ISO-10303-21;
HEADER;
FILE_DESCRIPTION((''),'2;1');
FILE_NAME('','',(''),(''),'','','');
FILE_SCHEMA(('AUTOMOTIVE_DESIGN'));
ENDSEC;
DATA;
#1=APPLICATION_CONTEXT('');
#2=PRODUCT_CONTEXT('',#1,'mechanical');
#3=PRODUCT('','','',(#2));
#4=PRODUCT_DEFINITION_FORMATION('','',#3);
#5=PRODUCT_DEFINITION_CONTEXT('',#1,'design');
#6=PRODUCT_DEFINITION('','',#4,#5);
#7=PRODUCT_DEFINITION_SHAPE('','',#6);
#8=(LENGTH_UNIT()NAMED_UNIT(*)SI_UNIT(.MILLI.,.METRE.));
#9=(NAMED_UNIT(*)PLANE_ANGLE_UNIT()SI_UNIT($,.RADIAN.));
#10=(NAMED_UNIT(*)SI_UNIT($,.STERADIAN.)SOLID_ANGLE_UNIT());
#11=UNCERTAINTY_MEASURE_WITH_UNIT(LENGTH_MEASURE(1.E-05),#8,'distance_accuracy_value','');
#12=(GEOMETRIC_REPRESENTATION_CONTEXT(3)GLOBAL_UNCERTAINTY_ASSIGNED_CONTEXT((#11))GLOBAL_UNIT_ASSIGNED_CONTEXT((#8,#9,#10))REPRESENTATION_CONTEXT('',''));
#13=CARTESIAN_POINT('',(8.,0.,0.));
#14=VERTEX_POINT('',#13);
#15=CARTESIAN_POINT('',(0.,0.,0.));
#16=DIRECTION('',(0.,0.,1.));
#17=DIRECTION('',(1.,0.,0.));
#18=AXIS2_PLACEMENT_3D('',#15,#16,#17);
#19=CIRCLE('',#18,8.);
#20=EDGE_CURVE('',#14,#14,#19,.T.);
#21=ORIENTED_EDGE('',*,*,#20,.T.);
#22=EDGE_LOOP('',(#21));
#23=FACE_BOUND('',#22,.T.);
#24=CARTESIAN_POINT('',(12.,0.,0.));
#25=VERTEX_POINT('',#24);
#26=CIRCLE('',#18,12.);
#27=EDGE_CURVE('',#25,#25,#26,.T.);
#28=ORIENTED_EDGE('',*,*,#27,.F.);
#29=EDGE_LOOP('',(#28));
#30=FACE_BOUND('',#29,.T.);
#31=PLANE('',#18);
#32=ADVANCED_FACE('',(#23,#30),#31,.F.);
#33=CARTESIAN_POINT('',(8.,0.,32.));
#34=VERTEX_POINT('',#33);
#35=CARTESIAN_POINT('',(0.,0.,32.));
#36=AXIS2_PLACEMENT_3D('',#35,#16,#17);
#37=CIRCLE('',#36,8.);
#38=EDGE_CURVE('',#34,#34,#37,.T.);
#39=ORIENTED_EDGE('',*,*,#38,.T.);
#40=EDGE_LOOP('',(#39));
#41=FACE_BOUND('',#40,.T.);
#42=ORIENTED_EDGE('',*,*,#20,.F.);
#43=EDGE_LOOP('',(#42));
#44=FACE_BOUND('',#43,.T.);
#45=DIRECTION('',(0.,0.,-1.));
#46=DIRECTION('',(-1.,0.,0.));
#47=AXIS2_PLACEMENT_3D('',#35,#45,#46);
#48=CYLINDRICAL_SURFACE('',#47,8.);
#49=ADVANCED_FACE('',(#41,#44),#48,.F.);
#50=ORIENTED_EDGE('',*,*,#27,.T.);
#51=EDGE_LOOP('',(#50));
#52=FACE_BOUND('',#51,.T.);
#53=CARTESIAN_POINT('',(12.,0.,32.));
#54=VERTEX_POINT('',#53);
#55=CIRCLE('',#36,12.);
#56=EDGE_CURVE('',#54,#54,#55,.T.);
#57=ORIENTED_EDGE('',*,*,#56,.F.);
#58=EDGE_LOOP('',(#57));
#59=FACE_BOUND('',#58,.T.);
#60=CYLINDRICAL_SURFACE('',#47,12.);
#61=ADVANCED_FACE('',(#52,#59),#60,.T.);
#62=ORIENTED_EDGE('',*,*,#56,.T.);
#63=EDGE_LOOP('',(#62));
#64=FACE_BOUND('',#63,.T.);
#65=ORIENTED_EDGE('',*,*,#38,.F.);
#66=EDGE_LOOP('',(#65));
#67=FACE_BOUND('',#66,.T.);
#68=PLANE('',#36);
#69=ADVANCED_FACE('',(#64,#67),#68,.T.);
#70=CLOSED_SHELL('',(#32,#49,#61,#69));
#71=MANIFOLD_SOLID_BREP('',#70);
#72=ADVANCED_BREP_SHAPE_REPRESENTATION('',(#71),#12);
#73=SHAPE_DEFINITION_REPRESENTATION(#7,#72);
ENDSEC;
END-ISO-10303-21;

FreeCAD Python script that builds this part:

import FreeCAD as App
import Part
import Sketcher

V = App.Vector

doc = App.newDocument("Part")
body = doc.addObject("PartDesign::Body", "Body")

# Sketch on XY plane
sketch1 = body.newObject("Sketcher::SketchObject", "Sketch")
sketch1.AttachmentSupport = (doc.getObject("XY_Plane"), [""])
sketch1.MapMode = "FlatFace"
sketch1.addGeometry(Part.Circle(V(0, 0, 0), V(0, 0, 1), 12), False)
sketch1.addGeometry(Part.Circle(V(0, 0, 0), V(0, 0, 1), 8), False)
sketch1.addConstraint(Sketcher.Constraint("Coincident", 0, 3, -1, 1))
sketch1.addConstraint(Sketcher.Constraint("Coincident", 1, 3, -1, 1))
sketch1.addConstraint(Sketcher.Constraint("Diameter", 0, 24.0))
sketch1.addConstraint(Sketcher.Constraint("Diameter", 1, 16.0))
pad1 = body.newObject("PartDesign::Pad", "Pad")
pad1.Profile = sketch1
pad1.Length = 32

doc.recompute()
